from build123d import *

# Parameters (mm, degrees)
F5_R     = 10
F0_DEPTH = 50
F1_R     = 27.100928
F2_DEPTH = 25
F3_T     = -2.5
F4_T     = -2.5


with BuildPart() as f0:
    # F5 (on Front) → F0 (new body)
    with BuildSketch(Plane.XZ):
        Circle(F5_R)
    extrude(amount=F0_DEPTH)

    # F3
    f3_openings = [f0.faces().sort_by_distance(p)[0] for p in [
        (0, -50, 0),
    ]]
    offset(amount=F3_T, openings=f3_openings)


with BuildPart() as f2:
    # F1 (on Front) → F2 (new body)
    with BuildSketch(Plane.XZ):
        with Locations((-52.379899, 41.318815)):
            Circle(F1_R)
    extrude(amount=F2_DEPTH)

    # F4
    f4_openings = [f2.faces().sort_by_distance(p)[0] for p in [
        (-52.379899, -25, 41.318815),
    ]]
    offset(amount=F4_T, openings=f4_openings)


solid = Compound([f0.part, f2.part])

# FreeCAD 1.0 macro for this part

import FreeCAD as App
import Part
import Sketcher
from FreeCAD import Vector
Q = App.Units.Quantity


def faces_at(feature, points):
    """Names of the faces that lie closest to the given points."""
    faces = feature.Shape.Faces
    near = lambda p: min(range(len(faces)), key=lambda i: faces[i].distToShape(Part.Vertex(*p))[0])
    return sorted({f"Face{near(p) + 1}" for p in points})

doc = App.newDocument("Part")
body = doc.addObject("PartDesign::Body", "Body")

# Sketch on XZ plane
sketch1 = doc.addObject("Sketcher::SketchObject", "Sketch")
body.addObject(sketch1)
sketch1.AttachmentSupport = (doc.XZ_Plane, [""])
sketch1.MapMode = "FlatFace"
sketch1.addGeometry(Part.Circle(Vector(0, 0, 0), Vector(0, 0, 1), 10), False)
sketch1.addConstraint([
    Sketcher.Constraint("Coincident", 0, 3, -1, 1),
    Sketcher.Constraint("Diameter", 0, Q("20 mm")),
])
pad1 = doc.addObject("PartDesign::Pad", "Pad")
body.addObject(pad1)
pad1.Profile = sketch1
pad1.Length = 50
doc.recompute()

thickness = doc.addObject("PartDesign::Thickness", "Thickness")
body.addObject(thickness)
thickness.Base = (pad1, faces_at(pad1, [(0, -50, 0)]))
thickness.Value = 2.5
thickness.Reversed = True
thickness.Join = "Arc"
body2 = doc.addObject("PartDesign::Body", "Body001")

# Sketch on XZ plane
sketch2 = doc.addObject("Sketcher::SketchObject", "Sketch001")
body2.addObject(sketch2)
sketch2.AttachmentSupport = (doc.getObject("XZ_Plane001"), [""])
sketch2.MapMode = "FlatFace"
sketch2.addGeometry(Part.Circle(Vector(-52.379899, 41.318815, 0), Vector(0, 0, 1), 27.100928), False)
sketch2.addConstraint([
    Sketcher.Constraint("Diameter", 0, Q("54.201856 mm")),
    Sketcher.Constraint("DistanceX", 0, 3, -1, 1, Q("52.379899 mm")),
    Sketcher.Constraint("DistanceY", -1, 1, 0, 3, Q("41.318815 mm")),
])
pad2 = doc.addObject("PartDesign::Pad", "Pad001")
body2.addObject(pad2)
pad2.Profile = sketch2
pad2.Length = 25
doc.recompute()

thickness2 = doc.addObject("PartDesign::Thickness", "Thickness001")
body2.addObject(thickness2)
thickness2.Base = (pad2, faces_at(pad2, [(-52.38, -25, 41.319)]))
thickness2.Value = 2.5
thickness2.Reversed = True
thickness2.Join = "Arc"

doc.recompute()
